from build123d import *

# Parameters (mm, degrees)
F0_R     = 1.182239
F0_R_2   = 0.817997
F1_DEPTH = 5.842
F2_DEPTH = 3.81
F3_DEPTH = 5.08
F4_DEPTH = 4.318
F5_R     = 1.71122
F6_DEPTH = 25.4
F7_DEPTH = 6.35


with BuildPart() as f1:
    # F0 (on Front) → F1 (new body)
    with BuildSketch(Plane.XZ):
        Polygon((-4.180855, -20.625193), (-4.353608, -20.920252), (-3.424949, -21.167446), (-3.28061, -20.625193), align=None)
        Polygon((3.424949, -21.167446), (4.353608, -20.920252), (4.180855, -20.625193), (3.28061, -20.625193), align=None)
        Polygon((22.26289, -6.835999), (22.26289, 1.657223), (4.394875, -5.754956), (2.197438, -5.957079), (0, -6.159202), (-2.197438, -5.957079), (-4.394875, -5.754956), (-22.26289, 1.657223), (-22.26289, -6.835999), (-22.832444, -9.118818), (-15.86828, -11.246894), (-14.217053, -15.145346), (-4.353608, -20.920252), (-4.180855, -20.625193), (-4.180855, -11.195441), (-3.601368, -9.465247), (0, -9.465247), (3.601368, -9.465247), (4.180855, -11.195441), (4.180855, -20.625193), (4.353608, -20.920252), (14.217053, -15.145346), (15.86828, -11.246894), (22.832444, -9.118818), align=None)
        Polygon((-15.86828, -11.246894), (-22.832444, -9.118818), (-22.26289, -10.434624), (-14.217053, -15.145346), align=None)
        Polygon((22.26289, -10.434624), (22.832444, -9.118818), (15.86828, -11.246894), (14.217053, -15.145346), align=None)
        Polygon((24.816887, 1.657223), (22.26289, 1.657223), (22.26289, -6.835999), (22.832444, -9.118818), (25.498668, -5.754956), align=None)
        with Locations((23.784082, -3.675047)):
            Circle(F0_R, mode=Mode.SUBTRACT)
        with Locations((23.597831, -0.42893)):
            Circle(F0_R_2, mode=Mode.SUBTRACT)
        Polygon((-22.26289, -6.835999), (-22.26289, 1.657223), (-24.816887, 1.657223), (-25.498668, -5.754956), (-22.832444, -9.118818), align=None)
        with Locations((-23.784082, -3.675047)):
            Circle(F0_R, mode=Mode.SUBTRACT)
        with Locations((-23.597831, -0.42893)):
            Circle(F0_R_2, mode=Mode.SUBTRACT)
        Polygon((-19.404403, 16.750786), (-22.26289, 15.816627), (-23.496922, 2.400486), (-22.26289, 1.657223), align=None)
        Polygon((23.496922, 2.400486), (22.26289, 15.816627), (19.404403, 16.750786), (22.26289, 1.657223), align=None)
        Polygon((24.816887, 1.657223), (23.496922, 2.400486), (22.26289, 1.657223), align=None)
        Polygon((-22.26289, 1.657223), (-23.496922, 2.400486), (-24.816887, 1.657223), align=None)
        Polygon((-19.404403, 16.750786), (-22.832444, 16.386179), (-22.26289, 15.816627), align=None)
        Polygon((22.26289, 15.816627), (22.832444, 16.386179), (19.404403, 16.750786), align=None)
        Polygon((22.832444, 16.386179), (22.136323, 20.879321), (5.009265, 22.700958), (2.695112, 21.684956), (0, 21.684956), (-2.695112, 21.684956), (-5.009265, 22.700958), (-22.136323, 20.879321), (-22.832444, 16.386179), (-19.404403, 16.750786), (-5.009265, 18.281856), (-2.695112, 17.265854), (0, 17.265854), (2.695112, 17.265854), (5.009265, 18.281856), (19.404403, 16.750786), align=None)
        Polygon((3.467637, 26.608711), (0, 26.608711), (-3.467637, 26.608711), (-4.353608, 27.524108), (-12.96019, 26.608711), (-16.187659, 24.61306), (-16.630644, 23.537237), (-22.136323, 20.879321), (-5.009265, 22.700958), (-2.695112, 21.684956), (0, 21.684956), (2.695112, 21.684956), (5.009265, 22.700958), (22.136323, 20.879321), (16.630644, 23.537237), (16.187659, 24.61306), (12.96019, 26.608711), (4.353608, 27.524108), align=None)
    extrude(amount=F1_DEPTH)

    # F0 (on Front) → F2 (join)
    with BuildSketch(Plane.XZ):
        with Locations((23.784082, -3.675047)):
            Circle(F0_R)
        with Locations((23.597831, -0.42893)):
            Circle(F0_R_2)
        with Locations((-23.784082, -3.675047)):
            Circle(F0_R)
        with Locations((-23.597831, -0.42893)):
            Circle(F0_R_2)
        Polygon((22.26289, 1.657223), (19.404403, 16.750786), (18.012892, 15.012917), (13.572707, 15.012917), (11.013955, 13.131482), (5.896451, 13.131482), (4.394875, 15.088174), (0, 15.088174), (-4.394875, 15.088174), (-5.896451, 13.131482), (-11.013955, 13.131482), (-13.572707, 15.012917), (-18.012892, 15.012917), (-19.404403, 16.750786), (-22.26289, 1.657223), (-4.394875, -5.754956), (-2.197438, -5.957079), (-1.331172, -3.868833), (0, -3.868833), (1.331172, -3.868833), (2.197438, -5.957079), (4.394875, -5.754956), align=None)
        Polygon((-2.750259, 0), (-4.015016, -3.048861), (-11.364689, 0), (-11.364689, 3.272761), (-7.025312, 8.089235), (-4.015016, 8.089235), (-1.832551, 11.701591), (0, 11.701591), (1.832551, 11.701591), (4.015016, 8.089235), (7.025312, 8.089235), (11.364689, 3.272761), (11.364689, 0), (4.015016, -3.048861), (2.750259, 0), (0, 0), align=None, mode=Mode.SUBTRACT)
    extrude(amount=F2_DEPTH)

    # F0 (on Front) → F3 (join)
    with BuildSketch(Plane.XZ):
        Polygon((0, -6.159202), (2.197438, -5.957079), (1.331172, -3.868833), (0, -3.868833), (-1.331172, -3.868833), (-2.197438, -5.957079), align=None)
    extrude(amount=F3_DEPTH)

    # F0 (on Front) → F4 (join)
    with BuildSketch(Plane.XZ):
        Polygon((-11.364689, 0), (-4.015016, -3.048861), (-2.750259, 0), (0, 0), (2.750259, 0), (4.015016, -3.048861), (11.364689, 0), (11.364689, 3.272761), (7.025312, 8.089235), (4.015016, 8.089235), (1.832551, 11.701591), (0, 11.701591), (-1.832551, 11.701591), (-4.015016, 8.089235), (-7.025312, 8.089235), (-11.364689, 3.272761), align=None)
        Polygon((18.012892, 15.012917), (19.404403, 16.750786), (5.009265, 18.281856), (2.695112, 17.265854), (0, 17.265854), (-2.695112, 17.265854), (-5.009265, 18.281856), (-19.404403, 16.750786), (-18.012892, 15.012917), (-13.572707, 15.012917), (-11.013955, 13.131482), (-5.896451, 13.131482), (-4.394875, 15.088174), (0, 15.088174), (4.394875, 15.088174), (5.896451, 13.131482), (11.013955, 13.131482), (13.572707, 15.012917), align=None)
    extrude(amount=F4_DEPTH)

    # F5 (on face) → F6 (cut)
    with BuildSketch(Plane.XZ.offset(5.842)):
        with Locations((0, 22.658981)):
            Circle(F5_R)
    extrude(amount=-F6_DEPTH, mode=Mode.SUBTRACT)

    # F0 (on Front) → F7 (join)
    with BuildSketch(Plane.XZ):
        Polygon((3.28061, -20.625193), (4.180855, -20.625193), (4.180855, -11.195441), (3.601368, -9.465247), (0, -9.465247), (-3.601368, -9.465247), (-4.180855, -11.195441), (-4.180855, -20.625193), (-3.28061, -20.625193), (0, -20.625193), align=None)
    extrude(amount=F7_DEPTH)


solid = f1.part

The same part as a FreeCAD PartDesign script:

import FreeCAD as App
import Part
import Sketcher
Q = App.Units.Quantity


def add_polygon(sketch, points):
    """Adds a closed chain of lines whose ends are joined by coincident constraints."""
    first, n = sketch.GeometryCount, len(points)
    for a, b in zip(points, points[1:] + points[:1]):
        sketch.addGeometry(Part.LineSegment(App.Vector(*a, 0), App.Vector(*b, 0)), False)
    for i in range(n):
        sketch.addConstraint(Sketcher.Constraint("Coincident", first + i, 2, first + (i + 1) % n, 1))

doc = App.newDocument("Part")
body = doc.addObject("PartDesign::Body", "Body")

sketch1 = doc.addObject("Sketcher::SketchObject", "Sketch")
body.addObject(sketch1)
sketch1.AttachmentSupport = (doc.XZ_Plane, [""])
sketch1.MapMode = "FlatFace"
add_polygon(sketch1, [(-4.353608, -20.920252), (-3.424949, -21.167446), (-3.28061, -20.625193), (-4.180855, -20.625193), (-4.180855, -11.195441), (-3.601368, -9.465247), (3.601368, -9.465247), (4.180855, -11.195441), (4.180855, -20.625193), (3.28061, -20.625193), (3.424949, -21.167446), (4.353608, -20.920252), (14.217053, -15.145346), (22.26289, -10.434624), (22.832444, -9.118818), (25.498668, -5.754956), (24.816887, 1.657223), (23.496922, 2.400486), (22.26289, 15.816627), (22.832444, 16.386179), (22.136323, 20.879321), (16.630644, 23.537237), (16.187659, 24.61306), (12.96019, 26.608711), (4.353608, 27.524108), (3.467637, 26.608711), (-3.467637, 26.608711), (-4.353608, 27.524108), (-12.96019, 26.608711), (-16.187659, 24.61306), (-16.630644, 23.537237), (-22.136323, 20.879321), (-22.832444, 16.386179), (-22.26289, 15.816627), (-23.496922, 2.400486), (-24.816887, 1.657223), (-25.498668, -5.754956), (-22.832444, -9.118818), (-22.26289, -10.434624), (-14.217053, -15.145346)])
add_polygon(sketch1, [(19.404403, 16.750786), (22.26289, 1.657223), (4.394875, -5.754956), (2.197438, -5.957079), (0, -6.159202), (-2.197438, -5.957079), (-4.394875, -5.754956), (-22.26289, 1.657223), (-19.404403, 16.750786), (-5.009265, 18.281856), (-2.695112, 17.265854), (2.695112, 17.265854), (5.009265, 18.281856)])
sketch1.addGeometry(Part.Circle(App.Vector(-23.784082, -3.675047, 0), App.Vector(0, 0, 1), 1.182239), False)
sketch1.addGeometry(Part.Circle(App.Vector(23.784082, -3.675047, 0), App.Vector(0, 0, 1), 1.182239), False)
sketch1.addGeometry(Part.Circle(App.Vector(-23.597831, -0.42893, 0), App.Vector(0, 0, 1), 0.817997), False)
sketch1.addGeometry(Part.Circle(App.Vector(23.597831, -0.42893, 0), App.Vector(0, 0, 1), 0.817997), False)
sketch1.addConstraint([
    Sketcher.Constraint("Horizontal", 2),
    Sketcher.Constraint("Vertical", 3),
    Sketcher.Constraint("Horizontal", 5),
    Sketcher.Constraint("Vertical", 7),
    Sketcher.Constraint("Horizontal", 8),
    Sketcher.Constraint("Horizontal", 25),
    Sketcher.Constraint("Horizontal", 50),
    Sketcher.Constraint("PointOnObject", 43, 2, -2),
    Sketcher.Constraint("DistanceY", 49, 2, 48, 2, Q("0.0400001 in")),
    Sketcher.Constraint("DistanceY", 50, 2, 51, 2, Q("0.0400001 in")),
    Sketcher.Constraint("Diameter", 53, 2.364478),
    Sketcher.Constraint("Diameter", 54, 2.364478),
    Sketcher.Constraint("Diameter", 55, 1.635994),
    Sketcher.Constraint("Diameter", 56, 1.635994),
    Sketcher.Constraint("DistanceY", 53, 3, 55, 3, Q("0.1277999 in")),
    Sketcher.Constraint("DistanceY", 54, 3, 55, 3, Q("0.1277999 in")),
    Sketcher.Constraint("DistanceY", 54, 3, 56, 3, Q("0.1277999 in")),
    Sketcher.Constraint("DistanceX", 41, 2, 11, 2, Q("0.3866999 in")),
    Sketcher.Constraint("DistanceY", 3, 1, 3, 2, 9.429752),
    Sketcher.Constraint("DistanceY", 7, 2, 7, 1, 9.429752),
    Sketcher.Constraint("DistanceY", 43, 2, -1, 1, 6.159202),
    Sketcher.Constraint("DistanceY", 0, 2, 53, 3, 17.492399),
    Sketcher.Constraint("DistanceY", 0, 2, 4, 2, 11.702199),
    Sketcher.Constraint("DistanceX", 8, 2, 10, 2, 1.072998),
    Sketcher.Constraint("DistanceY", 11, 2, 5, 2, 5.680099),
    Sketcher.Constraint("DistanceX", 19, 2, 16, 2, 1.360599),
    Sketcher.Constraint("DistanceY", 15, 2, 19, 2, 19.222098),
    Sketcher.Constraint("DistanceX", 20, 2, 18, 2, 6.2018),
    Sketcher.Constraint("DistanceX", 22, 2, 17, 2, 9.3027),
    Sketcher.Constraint("DistanceX", 26, 2, 22, 2, 17.313798),
    Sketcher.Constraint("DistanceX", 27, 2, 23, 2, 17.313798),
    Sketcher.Constraint("DistanceX", 31, 2, 29, 2, 6.2018),
    Sketcher.Constraint("DistanceX", 32, 2, 27, 2, 9.3027),
    Sketcher.Constraint("DistanceX", 33, 2, 30, 2, 1.360599),
    Sketcher.Constraint("DistanceY", 38, 2, 4, 2, 5.680099),
    Sketcher.Constraint("DistanceX", 39, 2, 1, 2, 1.072998),
    Sketcher.Constraint("DistanceX", 48, 2, 24, 2, 8.476902),
    Sketcher.Constraint("Distance", 11, 11.429658),
    Sketcher.Constraint("Distance", 15, 7.443468),
    Sketcher.Constraint("Distance", 18, 0.80547),
    Sketcher.Constraint("Distance", 24, 1.273929),
    Sketcher.Constraint("Distance", 26, 1.273929),
    Sketcher.Constraint("Distance", 32, 0.80547),
    Sketcher.Constraint("Distance", 35, 7.443468),
    Sketcher.Constraint("Distance", 39, 11.429658),
    Sketcher.Constraint("Distance", 48, 14.476331),
    Sketcher.Constraint("Distance", 52, 14.476331),
    Sketcher.Constraint("DistanceX", 2, 2, 2, 1, 0.900245),
    Sketcher.Constraint("DistanceX", 5, 1, 5, 2, 7.202736),
    Sketcher.Constraint("DistanceX", 8, 2, 8, 1, 0.900245),
    Sketcher.Constraint("DistanceX", 25, 2, 25, 1, 6.935274),
    Sketcher.Constraint("DistanceX", 50, 1, 50, 2, 5.390224),
    Sketcher.Constraint("DistanceX", 55, 3, -1, 1, 23.597831),
    Sketcher.Constraint("DistanceY", 55, 3, -1, 1, 0.42893),
    Sketcher.Constraint("DistanceX", -1, 1, 56, 3, 23.597831),
    Sketcher.Constraint("DistanceX", 0, 2, -1, 1, 3.424949),
    Sketcher.Constraint("DistanceX", 1, 2, -1, 1, 3.28061),
    Sketcher.Constraint("DistanceY", 3, 2, -1, 1, 11.195441),
    Sketcher.Constraint("DistanceY", 6, 2, -1, 1, 11.195441),
    Sketcher.Constraint("DistanceX", -1, 1, 8, 2, 3.28061),
    Sketcher.Constraint("DistanceX", -1, 1, 9, 2, 3.424949),
    Sketcher.Constraint("DistanceX", -1, 1, 12, 2, 22.26289),
    Sketcher.Constraint("DistanceX", -1, 1, 17, 2, 22.26289),
    Sketcher.Constraint("DistanceY", -1, 1, 18, 2, 16.386179),
    Sketcher.Constraint("DistanceY", -1, 1, 19, 2, 20.879321),
    Sketcher.Constraint("DistanceX", -1, 1, 21, 2, 16.187659),
    Sketcher.Constraint("DistanceY", -1, 1, 21, 2, 24.61306),
    Sketcher.Constraint("DistanceY", -1, 1, 22, 2, 26.608711),
    Sketcher.Constraint("DistanceX", -1, 1, 23, 2, 4.353608),
    Sketcher.Constraint("DistanceY", -1, 1, 24, 2, 26.608711),
    Sketcher.Constraint("DistanceY", -1, 1, 27, 2, 26.608711),
    Sketcher.Constraint("DistanceX", 28, 2, -1, 1, 16.187659),
    Sketcher.Constraint("DistanceY", -1, 1, 28, 2, 24.61306),
    Sketcher.Constraint("DistanceY", -1, 1, 30, 2, 20.879321),
    Sketcher.Constraint("DistanceY", -1, 1, 31, 2, 16.386179),
    Sketcher.Constraint("DistanceX", 37, 2, -1, 1, 22.26289),
    Sketcher.Constraint("DistanceX", -1, 1, 40, 2, 22.26289),
    Sketcher.Constraint("DistanceX", -1, 1, 42, 2, 2.197438),
    Sketcher.Constraint("DistanceY", 42, 2, -1, 1, 5.957079),
    Sketcher.Constraint("DistanceX", 44, 2, -1, 1, 2.197438),
    Sketcher.Constraint("DistanceY", 44, 2, -1, 1, 5.957079),
    Sketcher.Constraint("DistanceX", 46, 2, -1, 1, 22.26289),
    Sketcher.Constraint("DistanceX", 49, 2, -1, 1, 2.695112),
    Sketcher.Constraint("DistanceX", 53, 3, 55, 3, 0.186251),
    Sketcher.Constraint("DistanceX", 56, 3, 54, 3, 0.186251),
    Sketcher.Constraint("DistanceX", 4, 2, 1, 2, 0.320758),
    Sketcher.Constraint("DistanceY", 10, 2, 7, 2, 0.295059),
    Sketcher.Constraint("DistanceX", 13, 2, 54, 3, 0.951638),
    Sketcher.Constraint("DistanceY", 13, 2, 54, 3, 5.443771),
    Sketcher.Constraint("DistanceY", 14, 2, 54, 3, 2.079909),
    Sketcher.Constraint("DistanceX", 16, 2, 56, 3, 0.100909),
    Sketcher.Constraint("DistanceY", 16, 2, 17, 2, 13.416141),
    Sketcher.Constraint("DistanceY", 17, 2, 18, 2, 0.569552),
    Sketcher.Constraint("DistanceY", 18, 2, 20, 2, 7.151058),
    Sketcher.Constraint("DistanceY", 20, 2, 23, 2, 3.986871),
    Sketcher.Constraint("DistanceY", 29, 2, 26, 2, 3.986871),
    Sketcher.Constraint("DistanceX", 29, 2, 24, 2, 20.098281),
    Sketcher.Constraint("DistanceX", 30, 2, 29, 2, 5.505679),
    Sketcher.Constraint("DistanceY", 33, 2, 32, 2, 13.416141),
    Sketcher.Constraint("DistanceY", 53, 3, 34, 2, 5.33227),
    Sketcher.Constraint("DistanceY", 35, 2, 53, 3, 2.079909),
    Sketcher.Constraint("DistanceY", 36, 2, 35, 2, 3.363862),
    Sketcher.Constraint("DistanceX", 53, 3, 36, 2, 0.951638),
    Sketcher.Constraint("DistanceX", 36, 2, 38, 2, 8.615391),
    Sketcher.Constraint("DistanceY", 54, 3, 40, 2, 5.33227),
    Sketcher.Constraint("DistanceY", 5, 2, 41, 2, 3.710291),
    Sketcher.Constraint("DistanceY", 4, 2, 45, 2, 3.710291),
    Sketcher.Constraint("DistanceX", 45, 2, 3, 2, 0.21402),
    Sketcher.Constraint("DistanceY", 53, 3, 46, 2, 5.33227),
    Sketcher.Constraint("DistanceY", 32, 2, 47, 2, 0.934159),
    Sketcher.Constraint("DistanceX", 31, 2, 47, 2, 3.428041),
    Sketcher.Constraint("DistanceX", 24, 2, 51, 2, 1.541628),
    Sketcher.Constraint("DistanceY", 17, 2, 52, 2, 0.934159),
    Sketcher.Constraint("Distance", 9, 0.561135),
    Sketcher.Constraint("Distance", 12, 9.323433),
    Sketcher.Constraint("Distance", 14, 4.292356),
    Sketcher.Constraint("Distance", 34, 1.514842),
    Sketcher.Constraint("Distance", 37, 1.433784),
])
pad1 = doc.addObject("PartDesign::Pad", "Pad")
body.addObject(pad1)
pad1.Profile = sketch1
pad1.Length = Q("0.23 in")

sketch2 = doc.addObject("Sketcher::SketchObject", "Sketch001")
body.addObject(sketch2)
sketch2.AttachmentSupport = (doc.XZ_Plane, [""])
sketch2.MapMode = "FlatFace"
sketch2.addGeometry(Part.Circle(App.Vector(23.8, -3.7, 0), App.Vector(0, 0, 1), 1.2), False)
sketch2.addGeometry(Part.Circle(App.Vector(23.6, -0.4, 0), App.Vector(0, 0, 1), 0.8), False)
sketch2.addGeometry(Part.Circle(App.Vector(-23.8, -3.7, 0), App.Vector(0, 0, 1), 1.2), False)
sketch2.addGeometry(Part.Circle(App.Vector(-23.6, -0.4, 0), App.Vector(0, 0, 1), 0.8), False)
add_polygon(sketch2, [(22.3, 1.7), (19.4, 16.8), (18, 15), (13.6, 15), (11, 13.1), (5.9, 13.1), (4.4, 15.1), (-4.4, 15.1), (-5.9, 13.1), (-11, 13.1), (-13.6, 15), (-18, 15), (-19.4, 16.8), (-22.3, 1.7), (-4.4, -5.8), (-2.2, -6), (-1.3, -3.9), (1.3, -3.9), (2.2, -6), (4.4, -5.8)])
add_polygon(sketch2, [(2.8, 0), (-2.8, 0), (-4, -3), (-11.4, 0), (-11.4, 3.3), (-7, 8.1), (-4, 8.1), (-1.8, 11.7), (1.8, 11.7), (4, 8.1), (7, 8.1), (11.4, 3.3), (11.4, 0), (4, -3)])
sketch2.addConstraint([
    Sketcher.Constraint("Horizontal", 6),
    Sketcher.Constraint("Horizontal", 8),
    Sketcher.Constraint("Horizontal", 10),
    Sketcher.Constraint("Horizontal", 12),
    Sketcher.Constraint("Horizontal", 14),
    Sketcher.Constraint("Horizontal", 20),
    Sketcher.Constraint("Horizontal", 24),
    Sketcher.Constraint("Vertical", 27),
    Sketcher.Constraint("Horizontal", 29),
    Sketcher.Constraint("Horizontal", 31),
    Sketcher.Constraint("Horizontal", 33),
    Sketcher.Constraint("Vertical", 35),
    Sketcher.Constraint("Equal", 0, 2),
    Sketcher.Constraint("Equal", 1, 3),
    Sketcher.Constraint("Symmetric", 26, 2, 35, 2, -1, 1),
    Sketcher.Constraint("Symmetric", 24, 2, 37, 2, -1, 1),
    Sketcher.Constraint("Symmetric", 0, 3, 2, 3, -2),
    Sketcher.Constraint("Symmetric", 1, 3, 3, 3, -2),
    Sketcher.Constraint("Symmetric", 8, 2, 11, 2, -2),
    Sketcher.Constraint("Symmetric", 6, 2, 13, 2, -2),
    Sketcher.Constraint("Symmetric", 4, 2, 15, 2, -2),
    Sketcher.Constraint("Symmetric", 18, 2, 21, 2, -2),
    Sketcher.Constraint("Symmetric", 17, 2, 22, 2, -2),
    Sketcher.Constraint("Symmetric", 16, 2, 23, 2, -2),
    Sketcher.Constraint("Symmetric", 29, 2, 32, 2, -2),
    Sketcher.Constraint("Symmetric", 25, 2, 36, 2, -2),
    Sketcher.Constraint("PointOnObject", 26, 2, -1),
    Sketcher.Constraint("Perpendicular", 17, 19),
    Sketcher.Constraint("Perpendicular", 21, 23),
    Sketcher.Constraint("Parallel", 19, 25),
    Sketcher.Constraint("Perpendicular", 25, 26),
    Sketcher.Constraint("Horizontal", 27, 2, 34, 2),
    Sketcher.Constraint("Vertical", 10, 2, 17, 2),
    Sketcher.Constraint("Vertical", 9, 2, 22, 2),
    Sketcher.Constraint("Vertical", 25, 2, 29, 2),
    Sketcher.Constraint("Equal", 8, 12),
    Sketcher.Constraint("Equal", 6, 14),
    Sketcher.Constraint("Equal", 29, 33),
    Sketcher.Constraint("Equal", 30, 32),
    Sketcher.Constraint("Diameter", 0, 2.364478),
    Sketcher.Constraint("Diameter", 1, 1.635994),
    Sketcher.Constraint("DistanceY", 0, 3, 1, 3, Q("0.1277999 in")),
    Sketcher.Constraint("DistanceX", 10, 2, 10, 1, 8.78975),
    Sketcher.Constraint("DistanceY", 27, 1, 27, 2, 3.272761),
    Sketcher.Constraint("DistanceX", 16, 2, 27, 2, 10.898201),
    Sketcher.Constraint("DistanceX", 11, 2, 30, 2, 4.0639),
    Sketcher.Constraint("Distance", 9, 2.46645),
    Sketcher.Constraint("Distance", 30, 4.220458),
    Sketcher.Constraint("DistanceX", 6, 2, 6, 1, 4.440185),
    Sketcher.Constraint("DistanceX", 8, 2, 8, 1, 5.117504),
    Sketcher.Constraint("DistanceX", 20, 1, 20, 2, 2.662344),
    Sketcher.Constraint("DistanceX", 24, 2, 24, 1, 5.500518),
    Sketcher.Constraint("DistanceX", 29, 1, 29, 2, 3.010296),
    Sketcher.Constraint("DistanceX", 31, 1, 31, 2, 3.665102),
    Sketcher.Constraint("DistanceX", -1, 1, 1, 3, 23.597831),
    Sketcher.Constraint("DistanceY", 1, 3, -1, 1, 0.42893),
    Sketcher.Constraint("DistanceX", 16, 2, -1, 1, 22.26289),
    Sketcher.Constraint("DistanceX", 18, 2, -1, 1, 2.197438),
    Sketcher.Constraint("DistanceY", 18, 2, -1, 1, 5.957079),
    Sketcher.Constraint("DistanceY", 25, 2, -1, 1, 3.048861),
    Sketcher.Constraint("DistanceY", -1, 1, 30, 2, 11.701591),
    Sketcher.Constraint("DistanceX", 1, 3, 0, 3, 0.186251),
    Sketcher.Constraint("DistanceX", 4, 2, 1, 3, 4.193428),
    Sketcher.Constraint("DistanceX", 5, 2, 4, 2, 1.391511),
    Sketcher.Constraint("DistanceY", 5, 2, 4, 2, 1.737869),
    Sketcher.Constraint("DistanceY", 0, 3, 7, 2, 16.806529),
    Sketcher.Constraint("DistanceY", 2, 3, 16, 2, 5.33227),
    Sketcher.Constraint("Distance", 4, 15.361855),
])
pad2 = doc.addObject("PartDesign::Pad", "Pad001")
body.addObject(pad2)
pad2.Profile = sketch2
pad2.Length = Q("0.15 in")

sketch3 = doc.addObject("Sketcher::SketchObject", "Sketch002")
body.addObject(sketch3)
sketch3.AttachmentSupport = (doc.XZ_Plane, [""])
sketch3.MapMode = "FlatFace"
add_polygon(sketch3, [(0, -6.2), (2.2, -6), (1.3, -3.9), (-1.3, -3.9), (-2.2, -6)])
sketch3.addConstraint([
    Sketcher.Constraint("Horizontal", 2),
    Sketcher.Constraint("Symmetric", 0, 2, 3, 2, -2),
    Sketcher.Constraint("PointOnObject", 4, 2, -2),
    Sketcher.Constraint("Equal", 1, 3),
    Sketcher.Constraint("DistanceY", 4, 2, -1, 1, 6.159202),
    Sketcher.Constraint("DistanceX", 2, 2, 2, 1, 2.662344),
    Sketcher.Constraint("DistanceX", -1, 1, 0, 2, 2.197438),
    Sketcher.Constraint("DistanceY", 0, 2, -1, 1, 5.957079),
    Sketcher.Constraint("DistanceY", 4, 2, 1, 2, 2.290369),
])
pad3 = doc.addObject("PartDesign::Pad", "Pad002")
body.addObject(pad3)
pad3.Profile = sketch3
pad3.Length = Q("0.2 in")

sketch4 = doc.addObject("Sketcher::SketchObject", "Sketch003")
body.addObject(sketch4)
sketch4.AttachmentSupport = (doc.XZ_Plane, [""])
sketch4.MapMode = "FlatFace"
add_polygon(sketch4, [(-11.4, 0), (-4, -3), (-2.8, 0), (2.8, 0), (4, -3), (11.4, 0), (11.4, 3.3), (7, 8.1), (4, 8.1), (1.8, 11.7), (-1.8, 11.7), (-4, 8.1), (-7, 8.1), (-11.4, 3.3)])
add_polygon(sketch4, [(18, 15), (19.4, 16.8), (5, 18.3), (2.7, 17.3), (-2.7, 17.3), (-5, 18.3), (-19.4, 16.8), (-18, 15), (-13.6, 15), (-11, 13.1), (-5.9, 13.1), (-4.4, 15.1), (4.4, 15.1), (5.9, 13.1), (11, 13.1), (13.6, 15)])
sketch4.addConstraint([
    Sketcher.Constraint("Horizontal", 2),
    Sketcher.Constraint("Vertical", 5),
    Sketcher.Constraint("Horizontal", 7),
    Sketcher.Constraint("Horizontal", 9),
    Sketcher.Constraint("Horizontal", 11),
    Sketcher.Constraint("Vertical", 13),
    Sketcher.Constraint("Horizontal", 17),
    Sketcher.Constraint("Horizontal", 21),
    Sketcher.Constraint("Horizontal", 23),
    Sketcher.Constraint("Horizontal", 25),
    Sketcher.Constraint("Horizontal", 27),
    Sketcher.Constraint("Horizontal", 29),
    Sketcher.Constraint("Symmetric", 1, 2, 2, 2, -1, 1),
    Sketcher.Constraint("Symmetric", 4, 2, 13, 2, -1, 1),
    Sketcher.Constraint("Symmetric", 0, 2, 3, 2, -2),
    Sketcher.Constraint("Symmetric", 7, 2, 10, 2, -2),
    Sketcher.Constraint("Symmetric", 15, 2, 18, 2, -2),
    Sketcher.Constraint("Symmetric", 14, 2, 19, 2, -2),
    Sketcher.Constraint("Symmetric", 23, 2, 26, 2, -2),
    Sketcher.Constraint("Symmetric", 21, 2, 28, 2, -2),
    Sketcher.Constraint("PointOnObject", 4, 2, -1),
    Sketcher.Constraint("Perpendicular", 0, 1),
    Sketcher.Constraint("Horizontal", 5, 2, 12, 2),
    Sketcher.Constraint("Vertical", 3, 2, 7, 2),
    Sketcher.Constraint("Equal", 7, 11),
    Sketcher.Constraint("Equal", 23, 27),
    Sketcher.Constraint("Equal", 21, 29),
    Sketcher.Constraint("Equal", 8, 10),
    Sketcher.Constraint("Equal", 16, 18),
    Sketcher.Constraint("Equal", 24, 26),
    Sketcher.Constraint("DistanceY", 16, 2, 15, 2, Q("0.0400001 in")),
    Sketcher.Constraint("DistanceX", 0, 2, 4, 2, Q("0.6055002 in")),
    Sketcher.Constraint("DistanceX", 25, 1, 25, 2, 8.78975),
    Sketcher.Constraint("DistanceY", 5, 1, 5, 2, 3.272761),
    Sketcher.Constraint("DistanceX", 16, 2, 6, 2, 4.3302),
    Sketcher.Constraint("DistanceX", 23, 2, 9, 2, 4.0639),
    Sketcher.Constraint("Distance", 8, 4.220458),
    Sketcher.Constraint("Distance", 15, 14.476331),
    Sketcher.Constraint("Distance", 24, 2.46645),
    Sketcher.Constraint("DistanceX", 2, 1, 2, 2, 5.500518),
    Sketcher.Constraint("DistanceX", 7, 2, 7, 1, 3.010296),
    Sketcher.Constraint("DistanceX", 9, 2, 9, 1, 3.665102),
    Sketcher.Constraint("DistanceX", 17, 2, 17, 1, 5.390224),
    Sketcher.Constraint("DistanceX", 21, 1, 21, 2, 4.440185),
    Sketcher.Constraint("DistanceX", 23, 1, 23, 2, 5.117504),
    Sketcher.Constraint("DistanceY", -1, 1, 8, 2, 11.701591),
    Sketcher.Constraint("DistanceX", 6, 2, 14, 2, 12.379091),
    Sketcher.Constraint("DistanceY", 6, 2, 14, 2, 8.661551),
    Sketcher.Constraint("DistanceX", 7, 2, 15, 2, 0.994249),
    Sketcher.Constraint("DistanceX", 19, 2, 20, 2, 1.391511),
    Sketcher.Constraint("DistanceY", 20, 2, 19, 2, 1.737869),
    Sketcher.Constraint("DistanceY", 9, 2, 23, 2, 1.429891),
])
pad4 = doc.addObject("PartDesign::Pad", "Pad003")
body.addObject(pad4)
pad4.Profile = sketch4
pad4.Length = Q("0.17 in")

sketch5 = doc.addObject("Sketcher::SketchObject", "Sketch004")
body.addObject(sketch5)
sketch5.AttachmentSupport = (doc.XZ_Plane, [""])
sketch5.MapMode = "FlatFace"
sketch5.AttachmentOffset = App.Placement(App.Vector(0, 0, 0.23 * 25.4), App.Rotation())
sketch5.addGeometry(Part.Circle(App.Vector(0, 22.7, 0), App.Vector(0, 0, 1), 1.7), False)
sketch5.addConstraint([
    Sketcher.Constraint("PointOnObject", 0, 3, -2),
    Sketcher.Constraint("Diameter", 0, 3.42244),
    Sketcher.Constraint("DistanceY", -1, 1, 0, 3, 22.658981),
])
pocket1 = doc.addObject("PartDesign::Pocket", "Pocket")
body.addObject(pocket1)
pocket1.Profile = sketch5
pocket1.Length = Q("1 in")

sketch6 = doc.addObject("Sketcher::SketchObject", "Sketch005")
body.addObject(sketch6)
sketch6.AttachmentSupport = (doc.XZ_Plane, [""])
sketch6.MapMode = "FlatFace"
add_polygon(sketch6, [(4.2, -20.6), (4.2, -11.2), (3.6, -9.5), (-3.6, -9.5), (-4.2, -11.2), (-4.2, -20.6)])
sketch6.addConstraint([
    Sketcher.Constraint("Vertical", 0),
    Sketcher.Constraint("Horizontal", 2),
    Sketcher.Constraint("Vertical", 4),
    Sketcher.Constraint("Horizontal", 5),
    Sketcher.Constraint("Symmetric", 0, 2, 3, 2, -2),
    Sketcher.Constraint("Equal", 1, 3),
    Sketcher.Constraint("DistanceX", 5, 1, 5, 2, 8.36171),
    Sketcher.Constraint("DistanceY", 0, 1, 0, 2, 9.429752),
    Sketcher.Constraint("DistanceX", 2, 2, 2, 1, 7.202736),
    Sketcher.Constraint("DistanceY", 0, 2, -1, 1, 11.195441),
    Sketcher.Constraint("Distance", 1, 1.824658),
])
pad5 = doc.addObject("PartDesign::Pad", "Pad004")
body.addObject(pad5)
pad5.Profile = sketch6
pad5.Length = Q("0.25 in")

doc.recompute()
